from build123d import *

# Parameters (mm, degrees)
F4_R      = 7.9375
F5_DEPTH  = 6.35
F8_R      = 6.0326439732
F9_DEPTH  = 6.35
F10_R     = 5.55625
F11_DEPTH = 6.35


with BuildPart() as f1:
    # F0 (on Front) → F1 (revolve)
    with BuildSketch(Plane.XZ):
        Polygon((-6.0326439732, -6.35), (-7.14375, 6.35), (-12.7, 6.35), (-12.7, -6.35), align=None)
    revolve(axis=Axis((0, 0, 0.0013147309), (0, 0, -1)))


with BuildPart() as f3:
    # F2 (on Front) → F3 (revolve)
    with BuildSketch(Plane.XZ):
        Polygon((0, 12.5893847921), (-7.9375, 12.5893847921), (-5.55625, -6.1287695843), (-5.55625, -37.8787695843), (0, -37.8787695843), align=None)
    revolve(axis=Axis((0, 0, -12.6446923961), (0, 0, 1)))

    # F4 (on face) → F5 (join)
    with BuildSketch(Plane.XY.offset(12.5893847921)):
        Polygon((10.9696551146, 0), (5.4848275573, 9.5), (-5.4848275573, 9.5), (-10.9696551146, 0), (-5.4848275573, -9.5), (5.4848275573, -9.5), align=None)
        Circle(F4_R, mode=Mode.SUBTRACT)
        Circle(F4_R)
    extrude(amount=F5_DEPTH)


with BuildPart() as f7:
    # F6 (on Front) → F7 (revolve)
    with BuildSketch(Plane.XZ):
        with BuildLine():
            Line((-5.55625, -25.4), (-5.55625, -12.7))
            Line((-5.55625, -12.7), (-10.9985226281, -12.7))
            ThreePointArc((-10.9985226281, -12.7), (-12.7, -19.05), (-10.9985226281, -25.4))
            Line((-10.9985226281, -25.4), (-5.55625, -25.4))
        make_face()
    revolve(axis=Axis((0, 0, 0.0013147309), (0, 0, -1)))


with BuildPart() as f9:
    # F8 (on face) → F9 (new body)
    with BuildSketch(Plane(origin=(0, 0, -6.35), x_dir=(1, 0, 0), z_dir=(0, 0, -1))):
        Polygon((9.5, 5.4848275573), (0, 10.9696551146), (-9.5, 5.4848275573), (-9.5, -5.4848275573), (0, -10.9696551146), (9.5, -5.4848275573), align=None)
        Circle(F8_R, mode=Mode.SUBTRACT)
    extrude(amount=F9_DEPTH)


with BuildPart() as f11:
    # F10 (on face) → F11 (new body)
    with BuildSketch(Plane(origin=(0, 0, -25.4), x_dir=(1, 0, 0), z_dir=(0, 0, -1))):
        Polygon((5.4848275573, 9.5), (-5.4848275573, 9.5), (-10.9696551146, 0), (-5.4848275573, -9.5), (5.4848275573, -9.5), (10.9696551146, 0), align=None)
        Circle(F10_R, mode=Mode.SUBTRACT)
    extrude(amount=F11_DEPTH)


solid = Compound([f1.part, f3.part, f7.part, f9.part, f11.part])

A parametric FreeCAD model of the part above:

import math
import FreeCAD as App
import Part
import Sketcher

V = App.Vector
Q = App.Units.Quantity


def add_polygon(sketch, points):
    """Adds a closed chain of lines whose ends are joined by coincident constraints."""
    first, n = sketch.GeometryCount, len(points)
    for a, b in zip(points, points[1:] + points[:1]):
        sketch.addGeometry(Part.LineSegment(App.Vector(*a, 0), App.Vector(*b, 0)), False)
    for i in range(n):
        sketch.addConstraint(Sketcher.Constraint("Coincident", first + i, 2, first + (i + 1) % n, 1))

doc = App.newDocument("Part")
body = doc.addObject("PartDesign::Body", "Body")

# Sketch on XZ plane
sketch1 = doc.addObject("Sketcher::SketchObject", "Sketch")
body.addObject(sketch1)
sketch1.AttachmentSupport = (doc.XZ_Plane, [""])
sketch1.MapMode = "FlatFace"
add_polygon(sketch1, [(-6.032644, -6.35), (-7.14375, 6.35), (-12.7, 6.35), (-12.7, -6.35)])  # lines 0-3
sketch1.addConstraint(Sketcher.Constraint("Horizontal", 1))
sketch1.addConstraint(Sketcher.Constraint("Vertical", 2))
sketch1.addConstraint(Sketcher.Constraint("Horizontal", 3))
sketch1.addConstraint(Sketcher.Constraint("DistanceY", 2, 2, 2, 1, Q("0.5 in")))
sketch1.addConstraint(Sketcher.Constraint("Angle", 0, Q("95 deg")))
sketch1.addConstraint(Sketcher.Constraint("DistanceX", 1, 2, -1, 1, Q("0.5 in")))
sketch1.addConstraint(Sketcher.Constraint("DistanceX", 1, 2, 1, 1, Q("0.21875 in")))
sketch1.addConstraint(Sketcher.Constraint("DistanceY", -1, 1, 0, 2, Q("0.25 in")))
revolution = doc.addObject("PartDesign::Revolution", "Revolution")
body.addObject(revolution)
revolution.Profile = sketch1
revolution.ReferenceAxis = (sketch1, ["V_Axis"])
revolution.Angle = 360
body2 = doc.addObject("PartDesign::Body", "Body001")

# Sketch on XZ plane
sketch2 = doc.addObject("Sketcher::SketchObject", "Sketch001")
body2.addObject(sketch2)
sketch2.AttachmentSupport = (doc.getObject("XZ_Plane001"), [""])
sketch2.MapMode = "FlatFace"
add_polygon(sketch2, [(0, 12.589385), (-7.9375, 12.589385), (-5.55625, -6.12877), (-5.55625, -37.87877), (0, -37.87877)])  # lines 0-4
sketch2.addConstraint(Sketcher.Constraint("Horizontal", 0))
sketch2.addConstraint(Sketcher.Constraint("Vertical", 2))
sketch2.addConstraint(Sketcher.Constraint("Horizontal", 3))
sketch2.addConstraint(Sketcher.Constraint("Vertical", 4))
sketch2.addConstraint(Sketcher.Constraint("PointOnObject", 3, 2, -2))
sketch2.addConstraint(Sketcher.Constraint("DistanceY", 2, 2, 2, 1, Q("1.25 in")))
sketch2.addConstraint(Sketcher.Constraint("DistanceX", 0, 2, 0, 1, Q("0.3125 in")))
sketch2.addConstraint(Sketcher.Constraint("DistanceX", 3, 1, 3, 2, Q("0.21875 in")))
sketch2.addConstraint(Sketcher.Constraint("Angle", 1, Q("-82.75 deg")))
sketch2.addConstraint(Sketcher.Constraint("DistanceY", 1, 2, -1, 1, Q("6.12877 mm")))
revolution2 = doc.addObject("PartDesign::Revolution", "Revolution001")
body2.addObject(revolution2)
revolution2.Profile = sketch2
revolution2.ReferenceAxis = (sketch2, ["V_Axis"])
revolution2.Angle = 360

# Sketch on XY plane
sketch3 = doc.addObject("Sketcher::SketchObject", "Sketch002")
body2.addObject(sketch3)
sketch3.AttachmentSupport = (doc.getObject("XY_Plane001"), [""])
sketch3.MapMode = "FlatFace"
sketch3.AttachmentOffset = App.Placement(V(0, 0, 12.589385), App.Rotation())
add_polygon(sketch3, [(10.969655, 0), (5.484828, 9.5), (-5.484828, 9.5), (-10.969655, 0), (-5.484828, -9.5), (5.484828, -9.5)])  # lines 0-5
sketch3.addConstraint(Sketcher.Constraint("Horizontal", 1))
sketch3.addConstraint(Sketcher.Constraint("Horizontal", 4))
sketch3.addConstraint(Sketcher.Constraint("Symmetric", 0, 2, 3, 2, -1, 1))
sketch3.addConstraint(Sketcher.Constraint("Symmetric", 2, 2, 5, 2, -1, 1))
sketch3.addConstraint(Sketcher.Constraint("PointOnObject", 2, 2, -1))
sketch3.addConstraint(Sketcher.Constraint("Parallel", 2, 5))
sketch3.addConstraint(Sketcher.Constraint("Vertical", 1, 2, 3, 2))
sketch3.addConstraint(Sketcher.Constraint("Angle", 0, Q("120 deg")))
sketch3.addConstraint(Sketcher.Constraint("DistanceY", -1, 1, 0, 2, Q("9.5 mm")))
sketch3.addConstraint(Sketcher.Constraint("DistanceX", 1, 2, 1, 1, Q("10.969655 mm")))
pad1 = doc.addObject("PartDesign::Pad", "Pad")
body2.addObject(pad1)
pad1.Profile = sketch3
pad1.Length = Q("0.25 in")
body3 = doc.addObject("PartDesign::Body", "Body002")

# Sketch on XZ plane
sketch4 = doc.addObject("Sketcher::SketchObject", "Sketch003")
body3.addObject(sketch4)
sketch4.AttachmentSupport = (doc.getObject("XZ_Plane002"), [""])
sketch4.MapMode = "FlatFace"
sketch4.addGeometry(Part.LineSegment(V(-5.55625, -25.4, 0), V(-5.55625, -12.7, 0)), False)
sketch4.addGeometry(Part.LineSegment(V(-5.55625, -12.7, 0), V(-10.998523, -12.7, 0)), False)
sketch4.addGeometry(Part.ArcOfCircle(Part.Circle(V(0, -19.05, 0), V(0, 0, 1), 12.7), math.radians(150), math.radians(210)), False)
sketch4.addGeometry(Part.LineSegment(V(-10.998523, -25.4, 0), V(-5.55625, -25.4, 0)), False)
sketch4.addConstraint(Sketcher.Constraint("Coincident", 0, 2, 1, 1))
sketch4.addConstraint(Sketcher.Constraint("Coincident", 1, 2, 2, 1))
sketch4.addConstraint(Sketcher.Constraint("Coincident", 2, 2, 3, 1))
sketch4.addConstraint(Sketcher.Constraint("Coincident", 3, 2, 0, 1))
sketch4.addConstraint(Sketcher.Constraint("Vertical", 0))
sketch4.addConstraint(Sketcher.Constraint("Horizontal", 1))
sketch4.addConstraint(Sketcher.Constraint("Horizontal", 3))
sketch4.addConstraint(Sketcher.Constraint("PointOnObject", 2, 3, -2))
sketch4.addConstraint(Sketcher.Constraint("Vertical", 1, 2, 2, 2))
sketch4.addConstraint(Sketcher.Constraint("Radius", 2, Q("0.5 in")))
sketch4.addConstraint(Sketcher.Constraint("DistanceY", 0, 1, 0, 2, Q("0.5 in")))
sketch4.addConstraint(Sketcher.Constraint("DistanceY", 2, 2, -1, 1, Q("1 in")))
sketch4.addConstraint(Sketcher.Constraint("DistanceX", 0, 2, -1, 1, Q("0.21875 in")))
revolution3 = doc.addObject("PartDesign::Revolution", "Revolution002")
body3.addObject(revolution3)
revolution3.Profile = sketch4
revolution3.ReferenceAxis = (sketch4, ["V_Axis"])
revolution3.Angle = 360
body4 = doc.addObject("PartDesign::Body", "Body003")

# Sketch on XY plane
sketch5 = doc.addObject("Sketcher::SketchObject", "Sketch004")
body4.addObject(sketch5)
sketch5.AttachmentSupport = (doc.getObject("XY_Plane003"), [""])
sketch5.MapMode = "FlatFace"
sketch5.AttachmentOffset = App.Placement(V(0, 0, -0.25 * 25.4), App.Rotation())
add_polygon(sketch5, [(9.5, -5.484828), (0, -10.969655), (-9.5, -5.484828), (-9.5, 5.484828), (0, 10.969655), (9.5, 5.484828)])  # lines 0-5
sketch5.addGeometry(Part.Circle(V(0, 0, 0), V(0, 0, 1), 6.032644), False)  # 6
sketch5.addConstraint(Sketcher.Constraint("Vertical", 2))
sketch5.addConstraint(Sketcher.Constraint("Vertical", 5))
sketch5.addConstraint(Sketcher.Constraint("Coincident", 6, 3, -1, 1))
sketch5.addConstraint(Sketcher.Constraint("Symmetric", 0, 2, 3, 2, -1, 1))
sketch5.addConstraint(Sketcher.Constraint("Symmetric", 1, 2, 4, 2, -1, 1))
sketch5.addConstraint(Sketcher.Constraint("PointOnObject", 0, 2, -2))
sketch5.addConstraint(Sketcher.Constraint("Parallel", 0, 3))
sketch5.addConstraint(Sketcher.Constraint("Horizontal", 2, 2, 4, 2))
sketch5.addConstraint(Sketcher.Constraint("Angle", 0, Q("-150 deg")))
sketch5.addConstraint(Sketcher.Constraint("Diameter", 6, Q("12.065288 mm")))
sketch5.addConstraint(Sketcher.Constraint("DistanceX", 1, 2, -1, 1, Q("9.5 mm")))
sketch5.addConstraint(Sketcher.Constraint("DistanceY", 2, 1, 2, 2, Q("10.969655 mm")))
pad2 = doc.addObject("PartDesign::Pad", "Pad001")
body4.addObject(pad2)
pad2.Profile = sketch5
pad2.Length = Q("0.25 in")
pad2.Reversed = True
body5 = doc.addObject("PartDesign::Body", "Body004")

# Sketch on XY plane
sketch6 = doc.addObject("Sketcher::SketchObject", "Sketch005")
body5.addObject(sketch6)
sketch6.AttachmentSupport = (doc.getObject("XY_Plane004"), [""])
sketch6.MapMode = "FlatFace"
sketch6.AttachmentOffset = App.Placement(V(0, 0, -1 * 25.4), App.Rotation())
add_polygon(sketch6, [(5.484828, -9.5), (-5.484828, -9.5), (-10.969655, 0), (-5.484828, 9.5), (5.484828, 9.5), (10.969655, 0)])  # lines 0-5
sketch6.addGeometry(Part.Circle(V(0, 0, 0), V(0, 0, 1), 5.55625), False)  # 6
sketch6.addConstraint(Sketcher.Constraint("Horizontal", 0))
sketch6.addConstraint(Sketcher.Constraint("Horizontal", 3))
sketch6.addConstraint(Sketcher.Constraint("Coincident", 6, 3, -1, 1))
sketch6.addConstraint(Sketcher.Constraint("Symmetric", 0, 2, 3, 2, -1, 1))
sketch6.addConstraint(Sketcher.Constraint("Symmetric", 1, 2, 4, 2, -1, 1))
sketch6.addConstraint(Sketcher.Constraint("PointOnObject", 1, 2, -1))
sketch6.addConstraint(Sketcher.Constraint("Parallel", 2, 5))
sketch6.addConstraint(Sketcher.Constraint("Vertical", 0, 2, 2, 2))
sketch6.addConstraint(Sketcher.Constraint("Diameter", 6, Q("0.4375 in")))
sketch6.addConstraint(Sketcher.Constraint("Angle", 1, Q("120 deg")))
sketch6.addConstraint(Sketcher.Constraint("DistanceY", 0, 2, -1, 1, Q("9.5 mm")))
sketch6.addConstraint(Sketcher.Constraint("DistanceX", 0, 2, 0, 1, Q("10.969655 mm")))
pad3 = doc.addObject("PartDesign::Pad", "Pad002")
body5.addObject(pad3)
pad3.Profile = sketch6
pad3.Length = Q("0.25 in")
pad3.Reversed = True

doc.recompute()
